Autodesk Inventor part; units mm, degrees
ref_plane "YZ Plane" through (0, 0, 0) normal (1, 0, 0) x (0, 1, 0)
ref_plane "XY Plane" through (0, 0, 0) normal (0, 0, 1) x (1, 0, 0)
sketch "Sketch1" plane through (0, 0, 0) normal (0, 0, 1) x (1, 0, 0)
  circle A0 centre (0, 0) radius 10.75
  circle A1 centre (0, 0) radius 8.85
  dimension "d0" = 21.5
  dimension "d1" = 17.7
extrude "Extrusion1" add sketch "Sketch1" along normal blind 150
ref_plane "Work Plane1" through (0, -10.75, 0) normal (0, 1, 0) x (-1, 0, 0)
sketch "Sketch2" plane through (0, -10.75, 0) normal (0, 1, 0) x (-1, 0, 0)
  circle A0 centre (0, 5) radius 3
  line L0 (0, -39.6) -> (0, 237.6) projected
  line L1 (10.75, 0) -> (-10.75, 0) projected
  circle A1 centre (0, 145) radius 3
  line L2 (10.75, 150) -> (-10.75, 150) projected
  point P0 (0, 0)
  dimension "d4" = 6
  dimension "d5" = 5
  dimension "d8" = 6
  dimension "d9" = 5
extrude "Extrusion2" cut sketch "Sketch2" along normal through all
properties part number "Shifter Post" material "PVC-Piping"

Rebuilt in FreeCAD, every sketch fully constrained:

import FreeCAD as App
import Part
import Sketcher

V = App.Vector
Q = App.Units.Quantity

doc = App.newDocument("Part")
body = doc.addObject("PartDesign::Body", "Body")

sketch1 = body.newObject("Sketcher::SketchObject", "Sketch")
sketch1.AttachmentSupport = (doc.getObject("XY_Plane"), [""])
sketch1.MapMode = "FlatFace"
sketch1.addGeometry([
    Part.Circle(V(0, 0, 0), V(0, 0, 1), 11),
    Part.Circle(V(0, 0, 0), V(0, 0, 1), 9),
], False)
sketch1.addConstraint([
    Sketcher.Constraint("Coincident", 0, 3, -1, 1),
    Sketcher.Constraint("Coincident", 1, 3, -1, 1),
    Sketcher.Constraint("Diameter", 0, Q("21.5 mm")),
    Sketcher.Constraint("Diameter", 1, Q("17.7 mm")),
])
pad1 = body.newObject("PartDesign::Pad", "Pad")
pad1.Profile = sketch1
pad1.Length = 150

sketch2 = body.newObject("Sketcher::SketchObject", "Sketch001")
sketch2.AttachmentSupport = (doc.getObject("XZ_Plane"), [""])
sketch2.MapMode = "FlatFace"
sketch2.AttachmentOffset = App.Placement(V(0, 0, 10.75), App.Rotation())
sketch2.addGeometry([
    Part.Circle(V(0, 5, 0), V(0, 0, 1), 3),
    Part.Circle(V(0, 145, 0), V(0, 0, 1), 3),
], False)
sketch2.addConstraint([
    Sketcher.Constraint("Equal", 0, 1),
    Sketcher.Constraint("PointOnObject", 0, 3, -2),
    Sketcher.Constraint("PointOnObject", 1, 3, -2),
    Sketcher.Constraint("Diameter", 0, Q("6 mm")),
    Sketcher.Constraint("DistanceY", -1, 1, 0, 3, Q("5 mm")),
    Sketcher.Constraint("DistanceY", -1, 1, 1, 3, Q("145 mm")),
])
pocket1 = body.newObject("PartDesign::Pocket", "Pocket")
pocket1.Profile = sketch2
pocket1.Type = "ThroughAll"

doc.recompute()
